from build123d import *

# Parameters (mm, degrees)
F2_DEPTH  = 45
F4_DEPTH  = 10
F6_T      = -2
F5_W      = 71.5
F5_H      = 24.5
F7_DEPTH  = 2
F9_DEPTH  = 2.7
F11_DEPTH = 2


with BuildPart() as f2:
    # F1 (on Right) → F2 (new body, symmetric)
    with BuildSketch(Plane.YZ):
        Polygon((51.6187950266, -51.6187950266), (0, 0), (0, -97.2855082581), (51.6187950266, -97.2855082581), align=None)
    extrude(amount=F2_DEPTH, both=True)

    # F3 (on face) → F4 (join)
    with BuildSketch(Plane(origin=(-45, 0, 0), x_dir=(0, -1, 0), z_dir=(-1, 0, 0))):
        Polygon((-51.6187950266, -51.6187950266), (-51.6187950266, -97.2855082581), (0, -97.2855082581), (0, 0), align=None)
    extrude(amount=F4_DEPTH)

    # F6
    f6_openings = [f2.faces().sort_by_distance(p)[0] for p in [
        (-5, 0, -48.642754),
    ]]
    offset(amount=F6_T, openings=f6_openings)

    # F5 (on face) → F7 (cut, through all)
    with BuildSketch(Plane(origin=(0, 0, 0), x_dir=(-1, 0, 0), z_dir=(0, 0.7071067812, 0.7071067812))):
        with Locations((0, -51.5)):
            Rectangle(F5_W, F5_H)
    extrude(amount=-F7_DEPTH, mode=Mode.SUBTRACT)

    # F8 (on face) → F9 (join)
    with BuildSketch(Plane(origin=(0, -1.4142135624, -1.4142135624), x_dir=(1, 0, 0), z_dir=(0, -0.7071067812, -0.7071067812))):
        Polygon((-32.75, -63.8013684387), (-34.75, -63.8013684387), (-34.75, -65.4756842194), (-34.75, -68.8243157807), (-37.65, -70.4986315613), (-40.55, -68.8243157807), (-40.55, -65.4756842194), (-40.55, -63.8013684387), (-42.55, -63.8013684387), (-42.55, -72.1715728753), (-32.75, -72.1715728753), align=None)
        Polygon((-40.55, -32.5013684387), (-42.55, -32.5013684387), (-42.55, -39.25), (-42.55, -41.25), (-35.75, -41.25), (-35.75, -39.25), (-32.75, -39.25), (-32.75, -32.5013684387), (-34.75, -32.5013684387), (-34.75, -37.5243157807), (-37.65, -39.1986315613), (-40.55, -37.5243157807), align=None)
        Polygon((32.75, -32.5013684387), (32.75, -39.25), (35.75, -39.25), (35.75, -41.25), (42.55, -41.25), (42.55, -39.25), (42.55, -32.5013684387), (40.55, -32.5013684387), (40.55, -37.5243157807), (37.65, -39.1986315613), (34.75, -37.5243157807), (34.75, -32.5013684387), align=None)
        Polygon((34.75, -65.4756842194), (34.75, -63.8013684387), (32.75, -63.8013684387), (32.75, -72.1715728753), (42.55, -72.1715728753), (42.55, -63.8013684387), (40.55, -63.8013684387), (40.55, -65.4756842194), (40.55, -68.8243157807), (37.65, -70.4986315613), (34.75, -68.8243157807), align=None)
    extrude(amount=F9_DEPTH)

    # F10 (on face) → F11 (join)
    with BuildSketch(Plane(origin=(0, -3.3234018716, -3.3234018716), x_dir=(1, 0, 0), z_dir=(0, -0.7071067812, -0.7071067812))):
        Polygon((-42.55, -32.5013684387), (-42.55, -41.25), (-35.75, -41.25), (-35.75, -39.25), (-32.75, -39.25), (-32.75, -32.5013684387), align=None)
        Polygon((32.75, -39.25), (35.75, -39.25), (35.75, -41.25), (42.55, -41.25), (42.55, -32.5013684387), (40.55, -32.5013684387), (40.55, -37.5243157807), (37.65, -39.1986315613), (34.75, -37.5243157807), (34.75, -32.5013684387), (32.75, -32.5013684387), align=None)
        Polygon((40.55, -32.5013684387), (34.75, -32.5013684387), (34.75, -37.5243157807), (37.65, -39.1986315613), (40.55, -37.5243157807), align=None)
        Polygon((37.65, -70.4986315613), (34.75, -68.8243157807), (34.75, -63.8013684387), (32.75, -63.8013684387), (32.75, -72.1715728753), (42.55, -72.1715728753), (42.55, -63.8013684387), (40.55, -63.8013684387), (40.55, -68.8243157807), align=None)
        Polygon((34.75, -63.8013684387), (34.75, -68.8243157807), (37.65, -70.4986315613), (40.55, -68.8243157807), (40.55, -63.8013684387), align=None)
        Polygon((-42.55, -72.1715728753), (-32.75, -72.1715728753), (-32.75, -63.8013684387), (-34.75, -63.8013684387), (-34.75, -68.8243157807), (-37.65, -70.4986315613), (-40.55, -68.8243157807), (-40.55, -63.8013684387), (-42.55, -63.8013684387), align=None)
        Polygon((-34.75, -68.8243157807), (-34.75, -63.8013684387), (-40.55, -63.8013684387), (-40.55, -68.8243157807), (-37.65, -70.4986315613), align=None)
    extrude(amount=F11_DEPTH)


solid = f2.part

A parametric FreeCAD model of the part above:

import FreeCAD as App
import Part
import Sketcher
Q = App.Units.Quantity


def faces_at(feature, points):
    """Names of the faces that lie closest to the given points."""
    faces = feature.Shape.Faces
    near = lambda p: min(range(len(faces)), key=lambda i: faces[i].distToShape(Part.Vertex(*p))[0])
    return sorted({f"Face{near(p) + 1}" for p in points})

doc = App.newDocument("Part")
body = doc.addObject("PartDesign::Body", "Body")

sketch1 = body.newObject("Sketcher::SketchObject", "Sketch")
sketch1.AttachmentSupport = (doc.getObject("YZ_Plane"), [""])
sketch1.MapMode = "FlatFace"
sketch1.addGeometry([
    Part.LineSegment(App.Vector(51.618795, -51.618795, 0), App.Vector(0, 0, 0)),
    Part.LineSegment(App.Vector(0, 0, 0), App.Vector(0, -97.285508, 0)),
    Part.LineSegment(App.Vector(0, -97.285508, 0), App.Vector(51.618795, -97.285508, 0)),
    Part.LineSegment(App.Vector(51.618795, -97.285508, 0), App.Vector(51.618795, -51.618795, 0)),
], False)
sketch1.addConstraint([
    Sketcher.Constraint("Coincident", 0, 2, 1, 1),
    Sketcher.Constraint("Coincident", 1, 2, 2, 1),
    Sketcher.Constraint("Coincident", 2, 2, 3, 1),
    Sketcher.Constraint("Coincident", 3, 2, 0, 1),
    Sketcher.Constraint("Vertical", 1),
    Sketcher.Constraint("Horizontal", 2),
    Sketcher.Constraint("Vertical", 3),
    Sketcher.Constraint("Coincident", 0, 2, -1, 1),
    Sketcher.Constraint("Angle", 0, Q("135 deg")),
    Sketcher.Constraint("Distance", 0, Q("73 mm")),
    Sketcher.Constraint("DistanceY", 1, 2, 1, 1, Q("97.285508 mm")),
])
pad1 = body.newObject("PartDesign::Pad", "Pad")
pad1.Profile = sketch1
pad1.Length = 90
pad1.Midplane = True

sketch2 = body.newObject("Sketcher::SketchObject", "Sketch001")
sketch2.AttachmentSupport = (doc.getObject("YZ_Plane"), [""])
sketch2.MapMode = "FlatFace"
sketch2.AttachmentOffset = App.Placement(App.Vector(0, 0, -45), App.Rotation())
sketch2.addGeometry([
    Part.LineSegment(App.Vector(51.618795, -51.618795, 0), App.Vector(51.618795, -97.285508, 0)),
    Part.LineSegment(App.Vector(51.618795, -97.285508, 0), App.Vector(0, -97.285508, 0)),
    Part.LineSegment(App.Vector(0, -97.285508, 0), App.Vector(0, 0, 0)),
    Part.LineSegment(App.Vector(0, 0, 0), App.Vector(51.618795, -51.618795, 0)),
], False)
sketch2.addConstraint([
    Sketcher.Constraint("Coincident", 0, 2, 1, 1),
    Sketcher.Constraint("Coincident", 1, 2, 2, 1),
    Sketcher.Constraint("Coincident", 2, 2, 3, 1),
    Sketcher.Constraint("Coincident", 3, 2, 0, 1),
    Sketcher.Constraint("Vertical", 0),
    Sketcher.Constraint("Horizontal", 1),
    Sketcher.Constraint("Vertical", 2),
    Sketcher.Constraint("Coincident", 2, 2, -1, 1),
    Sketcher.Constraint("Angle", 3, Q("-45 deg")),
    Sketcher.Constraint("Distance", 3, Q("73 mm")),
    Sketcher.Constraint("DistanceY", 2, 1, 2, 2, Q("97.285508 mm")),
])
pad2 = body.newObject("PartDesign::Pad", "Pad001")
pad2.Profile = sketch2
pad2.Length = 10
pad2.Reversed = True
doc.recompute()

thickness = body.newObject("PartDesign::Thickness", "Thickness")
thickness.Base = (pad2, faces_at(pad2, [(-5, 0, -48.643)]))
thickness.Value = 2
thickness.Reversed = True
thickness.Join = "Arc"

sketch3 = body.newObject("Sketcher::SketchObject", "Sketch002")
sketch3.Placement = App.Placement(App.Vector(0, 0, 0), App.Rotation(App.Vector(-1, 0, 0), App.Vector(0, -0.707106781, 0.707106781), App.Vector(0, 0.707106781, 0.707106781), "ZXY"))
sketch3.addGeometry([
    Part.LineSegment(App.Vector(-35.75, -39.25, 0), App.Vector(-35.75, -63.75, 0)),
    Part.LineSegment(App.Vector(-35.75, -63.75, 0), App.Vector(35.75, -63.75, 0)),
    Part.LineSegment(App.Vector(35.75, -63.75, 0), App.Vector(35.75, -39.25, 0)),
    Part.LineSegment(App.Vector(35.75, -39.25, 0), App.Vector(-35.75, -39.25, 0)),
], False)
sketch3.addConstraint([
    Sketcher.Constraint("Coincident", 0, 2, 1, 1),
    Sketcher.Constraint("Coincident", 1, 2, 2, 1),
    Sketcher.Constraint("Coincident", 2, 2, 3, 1),
    Sketcher.Constraint("Coincident", 3, 2, 0, 1),
    Sketcher.Constraint("Vertical", 0),
    Sketcher.Constraint("Horizontal", 1),
    Sketcher.Constraint("Vertical", 2),
    Sketcher.Constraint("Horizontal", 3),
    Sketcher.Constraint("DistanceX", 1, 1, 1, 2, Q("71.5 mm")),
    Sketcher.Constraint("DistanceY", 0, 2, 0, 1, Q("24.5 mm")),
    Sketcher.Constraint("DistanceX", 0, 2, -1, 1, Q("35.75 mm")),
    Sketcher.Constraint("DistanceY", 0, 2, -1, 1, Q("63.75 mm")),
])
pocket1 = body.newObject("PartDesign::Pocket", "Pocket")
pocket1.Profile = sketch3
pocket1.Type = "ThroughAll"

sketch4 = body.newObject("Sketcher::SketchObject", "Sketch003")
sketch4.Placement = App.Placement(App.Vector(0, -1.414214, -1.414214), App.Rotation(App.Vector(1, 0, 0), App.Vector(0, -0.707106781, 0.707106781), App.Vector(0, -0.707106781, -0.707106781), "ZXY"))
sketch4.addGeometry([
    Part.LineSegment(App.Vector(-32.75, -63.801368, 0), App.Vector(-34.75, -63.801368, 0)),
    Part.LineSegment(App.Vector(-34.75, -63.801368, 0), App.Vector(-34.75, -68.824316, 0)),
    Part.LineSegment(App.Vector(-34.75, -68.824316, 0), App.Vector(-37.65, -70.498632, 0)),
    Part.LineSegment(App.Vector(-37.65, -70.498632, 0), App.Vector(-40.55, -68.824316, 0)),
    Part.LineSegment(App.Vector(-40.55, -68.824316, 0), App.Vector(-40.55, -63.801368, 0)),
    Part.LineSegment(App.Vector(-40.55, -63.801368, 0), App.Vector(-42.55, -63.801368, 0)),
    Part.LineSegment(App.Vector(-42.55, -63.801368, 0), App.Vector(-42.55, -72.171573, 0)),
    Part.LineSegment(App.Vector(-42.55, -72.171573, 0), App.Vector(-32.75, -72.171573, 0)),
    Part.LineSegment(App.Vector(-32.75, -72.171573, 0), App.Vector(-32.75, -63.801368, 0)),
    Part.LineSegment(App.Vector(-40.55, -32.501368, 0), App.Vector(-42.55, -32.501368, 0)),
    Part.LineSegment(App.Vector(-42.55, -32.501368, 0), App.Vector(-42.55, -41.25, 0)),
    Part.LineSegment(App.Vector(-42.55, -41.25, 0), App.Vector(-35.75, -41.25, 0)),
    Part.LineSegment(App.Vector(-35.75, -41.25, 0), App.Vector(-35.75, -39.25, 0)),
    Part.LineSegment(App.Vector(-35.75, -39.25, 0), App.Vector(-32.75, -39.25, 0)),
    Part.LineSegment(App.Vector(-32.75, -39.25, 0), App.Vector(-32.75, -32.501368, 0)),
    Part.LineSegment(App.Vector(-32.75, -32.501368, 0), App.Vector(-34.75, -32.501368, 0)),
    Part.LineSegment(App.Vector(-34.75, -32.501368, 0), App.Vector(-34.75, -37.524316, 0)),
    Part.LineSegment(App.Vector(-34.75, -37.524316, 0), App.Vector(-37.65, -39.198632, 0)),
    Part.LineSegment(App.Vector(-37.65, -39.198632, 0), App.Vector(-40.55, -37.524316, 0)),
    Part.LineSegment(App.Vector(-40.55, -37.524316, 0), App.Vector(-40.55, -32.501368, 0)),
    Part.LineSegment(App.Vector(32.75, -32.501368, 0), App.Vector(32.75, -39.25, 0)),
    Part.LineSegment(App.Vector(32.75, -39.25, 0), App.Vector(35.75, -39.25, 0)),
    Part.LineSegment(App.Vector(35.75, -39.25, 0), App.Vector(35.75, -41.25, 0)),
    Part.LineSegment(App.Vector(35.75, -41.25, 0), App.Vector(42.55, -41.25, 0)),
    Part.LineSegment(App.Vector(42.55, -41.25, 0), App.Vector(42.55, -32.501368, 0)),
    Part.LineSegment(App.Vector(42.55, -32.501368, 0), App.Vector(40.55, -32.501368, 0)),
    Part.LineSegment(App.Vector(40.55, -32.501368, 0), App.Vector(40.55, -37.524316, 0)),
    Part.LineSegment(App.Vector(40.55, -37.524316, 0), App.Vector(37.65, -39.198632, 0)),
    Part.LineSegment(App.Vector(37.65, -39.198632, 0), App.Vector(34.75, -37.524316, 0)),
    Part.LineSegment(App.Vector(34.75, -37.524316, 0), App.Vector(34.75, -32.501368, 0)),
    Part.LineSegment(App.Vector(34.75, -32.501368, 0), App.Vector(32.75, -32.501368, 0)),
    Part.LineSegment(App.Vector(34.75, -63.801368, 0), App.Vector(32.75, -63.801368, 0)),
    Part.LineSegment(App.Vector(32.75, -63.801368, 0), App.Vector(32.75, -72.171573, 0)),
    Part.LineSegment(App.Vector(32.75, -72.171573, 0), App.Vector(42.55, -72.171573, 0)),
    Part.LineSegment(App.Vector(42.55, -72.171573, 0), App.Vector(42.55, -63.801368, 0)),
    Part.LineSegment(App.Vector(42.55, -63.801368, 0), App.Vector(40.55, -63.801368, 0)),
    Part.LineSegment(App.Vector(40.55, -63.801368, 0), App.Vector(40.55, -68.824316, 0)),
    Part.LineSegment(App.Vector(40.55, -68.824316, 0), App.Vector(37.65, -70.498632, 0)),
    Part.LineSegment(App.Vector(37.65, -70.498632, 0), App.Vector(34.75, -68.824316, 0)),
    Part.LineSegment(App.Vector(34.75, -68.824316, 0), App.Vector(34.75, -63.801368, 0)),
], False)
sketch4.addConstraint([
    Sketcher.Constraint("Coincident", 0, 2, 1, 1),
    Sketcher.Constraint("Coincident", 1, 2, 2, 1),
    Sketcher.Constraint("Coincident", 2, 2, 3, 1),
    Sketcher.Constraint("Coincident", 3, 2, 4, 1),
    Sketcher.Constraint("Coincident", 4, 2, 5, 1),
    Sketcher.Constraint("Coincident", 5, 2, 6, 1),
    Sketcher.Constraint("Coincident", 6, 2, 7, 1),
    Sketcher.Constraint("Coincident", 7, 2, 8, 1),
    Sketcher.Constraint("Coincident", 8, 2, 0, 1),
    Sketcher.Constraint("Coincident", 9, 2, 10, 1),
    Sketcher.Constraint("Coincident", 10, 2, 11, 1),
    Sketcher.Constraint("Coincident", 11, 2, 12, 1),
    Sketcher.Constraint("Coincident", 12, 2, 13, 1),
    Sketcher.Constraint("Coincident", 13, 2, 14, 1),
    Sketcher.Constraint("Coincident", 14, 2, 15, 1),
    Sketcher.Constraint("Coincident", 15, 2, 16, 1),
    Sketcher.Constraint("Coincident", 16, 2, 17, 1),
    Sketcher.Constraint("Coincident", 17, 2, 18, 1),
    Sketcher.Constraint("Coincident", 18, 2, 19, 1),
    Sketcher.Constraint("Coincident", 19, 2, 9, 1),
    Sketcher.Constraint("Coincident", 20, 2, 21, 1),
    Sketcher.Constraint("Coincident", 21, 2, 22, 1),
    Sketcher.Constraint("Coincident", 22, 2, 23, 1),
    Sketcher.Constraint("Coincident", 23, 2, 24, 1),
    Sketcher.Constraint("Coincident", 24, 2, 25, 1),
    Sketcher.Constraint("Coincident", 25, 2, 26, 1),
    Sketcher.Constraint("Coincident", 26, 2, 27, 1),
    Sketcher.Constraint("Coincident", 27, 2, 28, 1),
    Sketcher.Constraint("Coincident", 28, 2, 29, 1),
    Sketcher.Constraint("Coincident", 29, 2, 30, 1),
    Sketcher.Constraint("Coincident", 30, 2, 20, 1),
    Sketcher.Constraint("Coincident", 31, 2, 32, 1),
    Sketcher.Constraint("Coincident", 32, 2, 33, 1),
    Sketcher.Constraint("Coincident", 33, 2, 34, 1),
    Sketcher.Constraint("Coincident", 34, 2, 35, 1),
    Sketcher.Constraint("Coincident", 35, 2, 36, 1),
    Sketcher.Constraint("Coincident", 36, 2, 37, 1),
    Sketcher.Constraint("Coincident", 37, 2, 38, 1),
    Sketcher.Constraint("Coincident", 38, 2, 39, 1),
    Sketcher.Constraint("Coincident", 39, 2, 31, 1),
    Sketcher.Constraint("Horizontal", 0),
    Sketcher.Constraint("Vertical", 1),
    Sketcher.Constraint("Vertical", 4),
    Sketcher.Constraint("Horizontal", 5),
    Sketcher.Constraint("Vertical", 6),
    Sketcher.Constraint("Horizontal", 7),
    Sketcher.Constraint("Vertical", 8),
    Sketcher.Constraint("Horizontal", 9),
    Sketcher.Constraint("Vertical", 10),
    Sketcher.Constraint("Horizontal", 11),
    Sketcher.Constraint("Vertical", 12),
    Sketcher.Constraint("Horizontal", 13),
    Sketcher.Constraint("Vertical", 14),
    Sketcher.Constraint("Horizontal", 15),
    Sketcher.Constraint("Vertical", 16),
    Sketcher.Constraint("Vertical", 19),
    Sketcher.Constraint("Vertical", 20),
    Sketcher.Constraint("Horizontal", 21),
    Sketcher.Constraint("Vertical", 22),
    Sketcher.Constraint("Horizontal", 23),
    Sketcher.Constraint("Vertical", 24),
    Sketcher.Constraint("Horizontal", 25),
    Sketcher.Constraint("Vertical", 26),
    Sketcher.Constraint("Vertical", 29),
    Sketcher.Constraint("Horizontal", 30),
    Sketcher.Constraint("Horizontal", 31),
    Sketcher.Constraint("Vertical", 32),
    Sketcher.Constraint("Horizontal", 33),
    Sketcher.Constraint("Vertical", 34),
    Sketcher.Constraint("Horizontal", 35),
    Sketcher.Constraint("Vertical", 36),
    Sketcher.Constraint("Vertical", 39),
    Sketcher.Constraint("Symmetric", 13, 2, 20, 2, -2),
    Sketcher.Constraint("Symmetric", 11, 2, 22, 2, -2),
    Sketcher.Constraint("Symmetric", 9, 2, 24, 2, -2),
    Sketcher.Constraint("Symmetric", 18, 2, 26, 2, -2),
    Sketcher.Constraint("Symmetric", 17, 2, 27, 2, -2),
    Sketcher.Constraint("Symmetric", 16, 2, 28, 2, -2),
    Sketcher.Constraint("Symmetric", 8, 2, 31, 2, -2),
    Sketcher.Constraint("Symmetric", 6, 2, 33, 2, -2),
    Sketcher.Constraint("Symmetric", 4, 2, 35, 2, -2),
    Sketcher.Constraint("Symmetric", 2, 2, 37, 2, -2),
    Sketcher.Constraint("Symmetric", 1, 2, 38, 2, -2),
    Sketcher.Constraint("Parallel", 2, 17),
    Sketcher.Constraint("Parallel", 3, 18),
    Sketcher.Constraint("Parallel", 17, 27),
    Sketcher.Constraint("Parallel", 27, 37),
    Sketcher.Constraint("Horizontal", 1, 2, 3, 2),
    Sketcher.Constraint("Horizontal", 0, 2, 4, 2),
    Sketcher.Constraint("Horizontal", 9, 2, 14, 2),
    Sketcher.Constraint("Horizontal", 16, 2, 18, 2),
    Sketcher.Constraint("Horizontal", 25, 2, 29, 2),
    Sketcher.Constraint("Vertical", 6, 2, 9, 2),
    Sketcher.Constraint("Vertical", 8, 2, 13, 2),
    Sketcher.Constraint("Vertical", 1, 2, 15, 2),
    Sketcher.Constraint("Vertical", 2, 2, 17, 2),
    Sketcher.Constraint("Equal", 0, 5),
    Sketcher.Constraint("Equal", 35, 12),
    Sketcher.Constraint("Equal", 4, 16),
    Sketcher.Constraint("DistanceX", 0, 2, 0, 1, Q("2 mm")),
    Sketcher.Constraint("DistanceX", 13, 1, 13, 2, Q("3 mm")),
    Sketcher.Constraint("Angle", 2, Q("-150 deg")),
    Sketcher.Constraint("DistanceX", 7, 1, 7, 2, Q("9.8 mm")),
    Sketcher.Constraint("DistanceY", 5, 2, 9, 2, Q("31.3 mm")),
    Sketcher.Constraint("DistanceX", 13, 2, 20, 2, Q("65.5 mm")),
    Sketcher.Constraint("DistanceY", 10, 2, -1, 1, Q("41.25 mm")),
    Sketcher.Constraint("DistanceY", 10, 2, 10, 1, Q("8.748632 mm")),
    Sketcher.Constraint("DistanceY", 1, 2, 1, 1, Q("5.022947 mm")),
    Sketcher.Constraint("DistanceY", 6, 2, 6, 1, Q("8.370204 mm")),
])
pad3 = body.newObject("PartDesign::Pad", "Pad002")
pad3.Profile = sketch4
pad3.Length = 2.7

sketch5 = body.newObject("Sketcher::SketchObject", "Sketch004")
sketch5.Placement = App.Placement(App.Vector(0, -3.323402, -3.323402), App.Rotation(App.Vector(1, 0, 0), App.Vector(0, -0.707106781, 0.707106781), App.Vector(0, -0.707106781, -0.707106781), "ZXY"))
sketch5.addGeometry([
    Part.LineSegment(App.Vector(-42.55, -32.501368, 0), App.Vector(-42.55, -41.25, 0)),
    Part.LineSegment(App.Vector(-42.55, -41.25, 0), App.Vector(-35.75, -41.25, 0)),
    Part.LineSegment(App.Vector(-35.75, -41.25, 0), App.Vector(-35.75, -39.25, 0)),
    Part.LineSegment(App.Vector(-35.75, -39.25, 0), App.Vector(-32.75, -39.25, 0)),
    Part.LineSegment(App.Vector(-32.75, -39.25, 0), App.Vector(-32.75, -32.501368, 0)),
    Part.LineSegment(App.Vector(-32.75, -32.501368, 0), App.Vector(-42.55, -32.501368, 0)),
    Part.LineSegment(App.Vector(32.75, -39.25, 0), App.Vector(35.75, -39.25, 0)),
    Part.LineSegment(App.Vector(35.75, -39.25, 0), App.Vector(35.75, -41.25, 0)),
    Part.LineSegment(App.Vector(35.75, -41.25, 0), App.Vector(42.55, -41.25, 0)),
    Part.LineSegment(App.Vector(42.55, -41.25, 0), App.Vector(42.55, -32.501368, 0)),
    Part.LineSegment(App.Vector(42.55, -32.501368, 0), App.Vector(32.75, -32.501368, 0)),
    Part.LineSegment(App.Vector(32.75, -32.501368, 0), App.Vector(32.75, -39.25, 0)),
    Part.LineSegment(App.Vector(32.75, -63.801368, 0), App.Vector(32.75, -72.171573, 0)),
    Part.LineSegment(App.Vector(32.75, -72.171573, 0), App.Vector(42.55, -72.171573, 0)),
    Part.LineSegment(App.Vector(42.55, -72.171573, 0), App.Vector(42.55, -63.801368, 0)),
    Part.LineSegment(App.Vector(42.55, -63.801368, 0), App.Vector(32.75, -63.801368, 0)),
    Part.LineSegment(App.Vector(-42.55, -72.171573, 0), App.Vector(-32.75, -72.171573, 0)),
    Part.LineSegment(App.Vector(-32.75, -72.171573, 0), App.Vector(-32.75, -63.801368, 0)),
    Part.LineSegment(App.Vector(-32.75, -63.801368, 0), App.Vector(-42.55, -63.801368, 0)),
    Part.LineSegment(App.Vector(-42.55, -63.801368, 0), App.Vector(-42.55, -72.171573, 0)),
], False)
sketch5.addConstraint([
    Sketcher.Constraint("Coincident", 0, 2, 1, 1),
    Sketcher.Constraint("Coincident", 1, 2, 2, 1),
    Sketcher.Constraint("Coincident", 2, 2, 3, 1),
    Sketcher.Constraint("Coincident", 3, 2, 4, 1),
    Sketcher.Constraint("Coincident", 4, 2, 5, 1),
    Sketcher.Constraint("Coincident", 5, 2, 0, 1),
    Sketcher.Constraint("Coincident", 6, 2, 7, 1),
    Sketcher.Constraint("Coincident", 7, 2, 8, 1),
    Sketcher.Constraint("Coincident", 8, 2, 9, 1),
    Sketcher.Constraint("Coincident", 9, 2, 10, 1),
    Sketcher.Constraint("Coincident", 10, 2, 11, 1),
    Sketcher.Constraint("Coincident", 11, 2, 6, 1),
    Sketcher.Constraint("Coincident", 12, 2, 13, 1),
    Sketcher.Constraint("Coincident", 13, 2, 14, 1),
    Sketcher.Constraint("Coincident", 14, 2, 15, 1),
    Sketcher.Constraint("Coincident", 15, 2, 12, 1),
    Sketcher.Constraint("Coincident", 16, 2, 17, 1),
    Sketcher.Constraint("Coincident", 17, 2, 18, 1),
    Sketcher.Constraint("Coincident", 18, 2, 19, 1),
    Sketcher.Constraint("Coincident", 19, 2, 16, 1),
    Sketcher.Constraint("Vertical", 0),
    Sketcher.Constraint("Horizontal", 1),
    Sketcher.Constraint("Vertical", 2),
    Sketcher.Constraint("Horizontal", 3),
    Sketcher.Constraint("Vertical", 4),
    Sketcher.Constraint("Horizontal", 5),
    Sketcher.Constraint("Horizontal", 6),
    Sketcher.Constraint("Vertical", 7),
    Sketcher.Constraint("Horizontal", 8),
    Sketcher.Constraint("Vertical", 9),
    Sketcher.Constraint("Horizontal", 10),
    Sketcher.Constraint("Vertical", 11),
    Sketcher.Constraint("Vertical", 12),
    Sketcher.Constraint("Horizontal", 13),
    Sketcher.Constraint("Vertical", 14),
    Sketcher.Constraint("Horizontal", 15),
    Sketcher.Constraint("Horizontal", 16),
    Sketcher.Constraint("Vertical", 17),
    Sketcher.Constraint("Horizontal", 18),
    Sketcher.Constraint("Vertical", 19),
    Sketcher.Constraint("Symmetric", 2, 2, 6, 2, -2),
    Sketcher.Constraint("Symmetric", 0, 2, 8, 2, -2),
    Sketcher.Constraint("Symmetric", 4, 2, 10, 2, -2),
    Sketcher.Constraint("Symmetric", 12, 2, 16, 2, -2),
    Sketcher.Constraint("Symmetric", 14, 2, 18, 2, -2),
    Sketcher.Constraint("Vertical", 11, 2, 12, 2),
    Sketcher.Constraint("Vertical", 9, 2, 13, 2),
    Sketcher.Constraint("DistanceX", 3, 1, 3, 2, Q("3 mm")),
    Sketcher.Constraint("DistanceY", 2, 1, 2, 2, Q("2 mm")),
    Sketcher.Constraint("DistanceX", 1, 1, 1, 2, Q("6.8 mm")),
    Sketcher.Constraint("DistanceX", 3, 2, 6, 2, Q("68.5 mm")),
    Sketcher.Constraint("DistanceY", 0, 2, -1, 1, Q("41.25 mm")),
    Sketcher.Constraint("DistanceY", 0, 2, 0, 1, Q("8.748632 mm")),
    Sketcher.Constraint("DistanceY", 12, 2, 12, 1, Q("8.370204 mm")),
    Sketcher.Constraint("DistanceY", 14, 2, -1, 1, Q("63.801368 mm")),
])
pad4 = body.newObject("PartDesign::Pad", "Pad003")
pad4.Profile = sketch5
pad4.Length = 2

doc.recompute()
